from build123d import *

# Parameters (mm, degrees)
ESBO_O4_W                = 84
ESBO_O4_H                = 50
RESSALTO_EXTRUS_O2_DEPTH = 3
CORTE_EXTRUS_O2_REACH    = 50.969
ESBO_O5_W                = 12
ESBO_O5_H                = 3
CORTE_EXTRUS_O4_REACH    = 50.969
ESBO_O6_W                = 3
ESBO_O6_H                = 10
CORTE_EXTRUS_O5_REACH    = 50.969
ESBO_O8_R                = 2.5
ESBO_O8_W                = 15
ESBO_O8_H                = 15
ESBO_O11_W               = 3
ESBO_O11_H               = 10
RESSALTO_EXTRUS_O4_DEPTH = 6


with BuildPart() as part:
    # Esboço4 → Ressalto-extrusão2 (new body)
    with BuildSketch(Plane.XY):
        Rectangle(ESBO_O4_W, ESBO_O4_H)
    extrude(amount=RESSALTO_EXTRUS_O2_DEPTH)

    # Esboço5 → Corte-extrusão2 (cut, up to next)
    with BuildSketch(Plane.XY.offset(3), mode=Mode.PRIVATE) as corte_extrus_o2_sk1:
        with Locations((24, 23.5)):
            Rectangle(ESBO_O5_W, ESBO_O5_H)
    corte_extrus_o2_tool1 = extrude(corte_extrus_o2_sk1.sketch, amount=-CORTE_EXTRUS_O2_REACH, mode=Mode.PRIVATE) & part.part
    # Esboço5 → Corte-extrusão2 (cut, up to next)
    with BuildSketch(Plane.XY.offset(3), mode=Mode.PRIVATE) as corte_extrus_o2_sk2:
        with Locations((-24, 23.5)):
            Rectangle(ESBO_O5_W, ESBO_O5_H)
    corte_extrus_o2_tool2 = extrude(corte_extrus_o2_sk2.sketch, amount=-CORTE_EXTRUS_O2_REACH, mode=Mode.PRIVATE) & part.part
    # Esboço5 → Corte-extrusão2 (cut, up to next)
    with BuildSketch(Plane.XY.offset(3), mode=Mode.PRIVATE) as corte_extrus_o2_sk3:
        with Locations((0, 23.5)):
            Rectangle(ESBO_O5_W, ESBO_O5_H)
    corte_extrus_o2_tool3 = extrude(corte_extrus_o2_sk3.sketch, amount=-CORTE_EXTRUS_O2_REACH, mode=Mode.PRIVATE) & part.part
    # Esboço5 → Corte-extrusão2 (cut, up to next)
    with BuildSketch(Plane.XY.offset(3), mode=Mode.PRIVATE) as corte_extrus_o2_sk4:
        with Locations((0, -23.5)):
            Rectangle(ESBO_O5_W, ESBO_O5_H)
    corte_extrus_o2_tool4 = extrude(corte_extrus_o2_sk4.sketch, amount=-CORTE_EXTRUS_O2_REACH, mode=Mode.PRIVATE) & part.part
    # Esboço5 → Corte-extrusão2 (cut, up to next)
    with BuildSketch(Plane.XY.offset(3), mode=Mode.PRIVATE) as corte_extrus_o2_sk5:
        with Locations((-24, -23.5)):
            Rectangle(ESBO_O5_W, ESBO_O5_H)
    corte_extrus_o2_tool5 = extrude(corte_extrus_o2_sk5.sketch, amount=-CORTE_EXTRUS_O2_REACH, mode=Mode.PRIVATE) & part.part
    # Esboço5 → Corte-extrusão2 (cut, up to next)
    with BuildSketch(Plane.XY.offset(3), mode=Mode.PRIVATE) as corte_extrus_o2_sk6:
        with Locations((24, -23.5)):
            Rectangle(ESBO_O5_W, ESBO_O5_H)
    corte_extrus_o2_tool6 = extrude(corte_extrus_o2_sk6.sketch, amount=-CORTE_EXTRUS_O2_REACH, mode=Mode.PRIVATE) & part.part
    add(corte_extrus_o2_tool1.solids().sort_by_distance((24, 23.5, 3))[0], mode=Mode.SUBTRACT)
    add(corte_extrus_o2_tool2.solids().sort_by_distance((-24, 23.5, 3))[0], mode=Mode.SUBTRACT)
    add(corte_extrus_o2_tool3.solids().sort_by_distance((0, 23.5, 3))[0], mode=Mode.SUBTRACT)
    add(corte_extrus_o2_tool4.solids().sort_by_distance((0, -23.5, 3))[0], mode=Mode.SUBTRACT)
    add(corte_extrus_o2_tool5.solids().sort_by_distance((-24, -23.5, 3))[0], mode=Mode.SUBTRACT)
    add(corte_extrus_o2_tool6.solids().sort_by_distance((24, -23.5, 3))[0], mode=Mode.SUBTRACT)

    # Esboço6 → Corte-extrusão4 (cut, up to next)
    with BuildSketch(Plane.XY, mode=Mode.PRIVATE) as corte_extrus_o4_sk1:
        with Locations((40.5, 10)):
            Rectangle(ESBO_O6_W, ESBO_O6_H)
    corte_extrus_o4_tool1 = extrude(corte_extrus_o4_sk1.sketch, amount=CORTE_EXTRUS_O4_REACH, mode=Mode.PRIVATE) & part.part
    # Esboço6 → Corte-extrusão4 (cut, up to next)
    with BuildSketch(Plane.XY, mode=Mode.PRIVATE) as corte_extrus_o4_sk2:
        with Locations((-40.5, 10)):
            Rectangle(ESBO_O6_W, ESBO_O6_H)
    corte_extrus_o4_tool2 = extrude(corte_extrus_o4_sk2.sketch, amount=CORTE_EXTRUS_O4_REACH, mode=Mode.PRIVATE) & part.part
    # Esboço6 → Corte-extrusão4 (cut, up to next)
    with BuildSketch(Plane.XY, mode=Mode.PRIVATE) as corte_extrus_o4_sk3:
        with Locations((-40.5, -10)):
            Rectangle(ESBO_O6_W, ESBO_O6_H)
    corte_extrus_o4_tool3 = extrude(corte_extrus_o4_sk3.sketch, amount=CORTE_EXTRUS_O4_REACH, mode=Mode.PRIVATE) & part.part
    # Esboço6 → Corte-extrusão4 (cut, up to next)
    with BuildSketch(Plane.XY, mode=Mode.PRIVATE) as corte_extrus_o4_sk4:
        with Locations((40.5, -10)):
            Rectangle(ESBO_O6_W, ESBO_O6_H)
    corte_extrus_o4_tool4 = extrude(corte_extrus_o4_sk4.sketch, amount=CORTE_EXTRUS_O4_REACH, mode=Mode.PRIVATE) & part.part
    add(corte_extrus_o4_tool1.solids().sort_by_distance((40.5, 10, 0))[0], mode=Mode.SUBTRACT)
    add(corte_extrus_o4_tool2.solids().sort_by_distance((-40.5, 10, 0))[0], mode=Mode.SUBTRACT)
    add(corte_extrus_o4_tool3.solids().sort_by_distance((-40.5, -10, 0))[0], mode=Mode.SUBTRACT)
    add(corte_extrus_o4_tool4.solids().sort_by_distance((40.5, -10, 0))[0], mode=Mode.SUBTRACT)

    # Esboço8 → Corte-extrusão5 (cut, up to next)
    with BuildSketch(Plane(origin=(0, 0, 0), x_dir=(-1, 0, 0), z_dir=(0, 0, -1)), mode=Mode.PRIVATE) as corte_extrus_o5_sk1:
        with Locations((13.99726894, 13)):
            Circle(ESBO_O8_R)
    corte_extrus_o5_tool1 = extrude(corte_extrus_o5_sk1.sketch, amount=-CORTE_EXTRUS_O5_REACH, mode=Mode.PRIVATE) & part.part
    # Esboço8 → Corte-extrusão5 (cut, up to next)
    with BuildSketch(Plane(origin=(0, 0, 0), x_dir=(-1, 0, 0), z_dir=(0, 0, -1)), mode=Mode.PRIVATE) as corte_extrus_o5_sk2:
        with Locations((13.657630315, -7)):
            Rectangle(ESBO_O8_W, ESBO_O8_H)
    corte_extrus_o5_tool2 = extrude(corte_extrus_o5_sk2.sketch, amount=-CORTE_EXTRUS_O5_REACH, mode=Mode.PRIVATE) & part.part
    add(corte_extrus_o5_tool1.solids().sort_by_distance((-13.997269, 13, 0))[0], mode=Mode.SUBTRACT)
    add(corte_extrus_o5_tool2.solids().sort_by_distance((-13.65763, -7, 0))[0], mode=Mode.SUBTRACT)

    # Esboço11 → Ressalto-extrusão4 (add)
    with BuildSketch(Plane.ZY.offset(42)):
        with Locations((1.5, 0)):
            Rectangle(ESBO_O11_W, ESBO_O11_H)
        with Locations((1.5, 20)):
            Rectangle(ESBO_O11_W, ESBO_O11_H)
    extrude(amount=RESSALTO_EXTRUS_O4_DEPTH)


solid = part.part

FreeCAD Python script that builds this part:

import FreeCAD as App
import Part
import Sketcher
from FreeCAD import Vector
Q = App.Units.Quantity


def add_polygon(sketch, points):
    """Adds a closed chain of lines whose ends are joined by coincident constraints."""
    first, n = sketch.GeometryCount, len(points)
    for a, b in zip(points, points[1:] + points[:1]):
        sketch.addGeometry(Part.LineSegment(App.Vector(*a, 0), App.Vector(*b, 0)), False)
    for i in range(n):
        sketch.addConstraint(Sketcher.Constraint("Coincident", first + i, 2, first + (i + 1) % n, 1))

doc = App.newDocument("Part")
body = doc.addObject("PartDesign::Body", "Body")

sketch1 = doc.addObject("Sketcher::SketchObject", "Sketch")
body.addObject(sketch1)
sketch1.AttachmentSupport = (doc.XY_Plane, [""])
sketch1.MapMode = "FlatFace"
add_polygon(sketch1, [(-42, 25), (-42, -25), (42, -25), (42, 25)])
sketch1.addConstraint([
    Sketcher.Constraint("Vertical", 0),
    Sketcher.Constraint("Horizontal", 1),
    Sketcher.Constraint("Vertical", 2),
    Sketcher.Constraint("Horizontal", 3),
    Sketcher.Constraint("Symmetric", 0, 2, 2, 2, -1, 1),
    Sketcher.Constraint("DistanceX", 1, 1, 1, 2, Q("84 mm")),
    Sketcher.Constraint("DistanceY", 0, 2, 0, 1, Q("50 mm")),
])
pad1 = doc.addObject("PartDesign::Pad", "Pad")
body.addObject(pad1)
pad1.Profile = sketch1
pad1.Length = 3

sketch2 = doc.addObject("Sketcher::SketchObject", "Sketch001")
body.addObject(sketch2)
sketch2.AttachmentSupport = (doc.XY_Plane, [""])
sketch2.MapMode = "FlatFace"
sketch2.AttachmentOffset = App.Placement(Vector(0, 0, 3), App.Rotation())
add_polygon(sketch2, [(18, 25), (18, 22), (30, 22), (30, 25)])
sketch2.addConstraint([
    Sketcher.Constraint("Vertical", 0),
    Sketcher.Constraint("Horizontal", 1),
    Sketcher.Constraint("Vertical", 2),
    Sketcher.Constraint("Horizontal", 3),
    Sketcher.Constraint("DistanceX", 1, 1, 1, 2, Q("12 mm")),
    Sketcher.Constraint("DistanceY", 0, 2, 0, 1, Q("3 mm")),
    Sketcher.Constraint("DistanceX", -1, 1, 0, 2, Q("18 mm")),
    Sketcher.Constraint("DistanceY", -1, 1, 0, 2, Q("22 mm")),
])
pocket1 = doc.addObject("PartDesign::Pocket", "Pocket")
body.addObject(pocket1)
pocket1.Profile = sketch2
pocket1.Type = "UpToFirst"

sketch3 = doc.addObject("Sketcher::SketchObject", "Sketch002")
body.addObject(sketch3)
sketch3.AttachmentSupport = (doc.XY_Plane, [""])
sketch3.MapMode = "FlatFace"
sketch3.AttachmentOffset = App.Placement(Vector(0, 0, 3), App.Rotation())
add_polygon(sketch3, [(-30, 25), (-30, 22), (-18, 22), (-18, 25)])
sketch3.addConstraint([
    Sketcher.Constraint("Vertical", 0),
    Sketcher.Constraint("Horizontal", 1),
    Sketcher.Constraint("Vertical", 2),
    Sketcher.Constraint("Horizontal", 3),
    Sketcher.Constraint("DistanceX", 1, 1, 1, 2, Q("12 mm")),
    Sketcher.Constraint("DistanceY", 0, 2, 0, 1, Q("3 mm")),
    Sketcher.Constraint("DistanceX", 0, 2, -1, 1, Q("30 mm")),
    Sketcher.Constraint("DistanceY", -1, 1, 0, 2, Q("22 mm")),
])
pocket2 = doc.addObject("PartDesign::Pocket", "Pocket001")
body.addObject(pocket2)
pocket2.Profile = sketch3
pocket2.Type = "UpToFirst"

sketch4 = doc.addObject("Sketcher::SketchObject", "Sketch003")
body.addObject(sketch4)
sketch4.AttachmentSupport = (doc.XY_Plane, [""])
sketch4.MapMode = "FlatFace"
sketch4.AttachmentOffset = App.Placement(Vector(0, 0, 3), App.Rotation())
add_polygon(sketch4, [(-6, 25), (-6, 22), (6, 22), (6, 25)])
sketch4.addConstraint([
    Sketcher.Constraint("Vertical", 0),
    Sketcher.Constraint("Horizontal", 1),
    Sketcher.Constraint("Vertical", 2),
    Sketcher.Constraint("Horizontal", 3),
    Sketcher.Constraint("DistanceX", 1, 1, 1, 2, Q("12 mm")),
    Sketcher.Constraint("DistanceY", 0, 2, 0, 1, Q("3 mm")),
    Sketcher.Constraint("DistanceX", 0, 2, -1, 1, Q("6 mm")),
    Sketcher.Constraint("DistanceY", -1, 1, 0, 2, Q("22 mm")),
])
pocket3 = doc.addObject("PartDesign::Pocket", "Pocket002")
body.addObject(pocket3)
pocket3.Profile = sketch4
pocket3.Type = "UpToFirst"

sketch5 = doc.addObject("Sketcher::SketchObject", "Sketch004")
body.addObject(sketch5)
sketch5.AttachmentSupport = (doc.XY_Plane, [""])
sketch5.MapMode = "FlatFace"
sketch5.AttachmentOffset = App.Placement(Vector(0, 0, 3), App.Rotation())
add_polygon(sketch5, [(-6, -22), (-6, -25), (6, -25), (6, -22)])
sketch5.addConstraint([
    Sketcher.Constraint("Vertical", 0),
    Sketcher.Constraint("Horizontal", 1),
    Sketcher.Constraint("Vertical", 2),
    Sketcher.Constraint("Horizontal", 3),
    Sketcher.Constraint("DistanceX", 1, 1, 1, 2, Q("12 mm")),
    Sketcher.Constraint("DistanceY", 0, 2, 0, 1, Q("3 mm")),
    Sketcher.Constraint("DistanceX", 0, 2, -1, 1, Q("6 mm")),
    Sketcher.Constraint("DistanceY", 0, 2, -1, 1, Q("25 mm")),
])
pocket4 = doc.addObject("PartDesign::Pocket", "Pocket003")
body.addObject(pocket4)
pocket4.Profile = sketch5
pocket4.Type = "UpToFirst"

sketch6 = doc.addObject("Sketcher::SketchObject", "Sketch005")
body.addObject(sketch6)
sketch6.AttachmentSupport = (doc.XY_Plane, [""])
sketch6.MapMode = "FlatFace"
sketch6.AttachmentOffset = App.Placement(Vector(0, 0, 3), App.Rotation())
add_polygon(sketch6, [(-30, -22), (-30, -25), (-18, -25), (-18, -22)])
sketch6.addConstraint([
    Sketcher.Constraint("Vertical", 0),
    Sketcher.Constraint("Horizontal", 1),
    Sketcher.Constraint("Vertical", 2),
    Sketcher.Constraint("Horizontal", 3),
    Sketcher.Constraint("DistanceX", 1, 1, 1, 2, Q("12 mm")),
    Sketcher.Constraint("DistanceY", 0, 2, 0, 1, Q("3 mm")),
    Sketcher.Constraint("DistanceX", 0, 2, -1, 1, Q("30 mm")),
    Sketcher.Constraint("DistanceY", 0, 2, -1, 1, Q("25 mm")),
])
pocket5 = doc.addObject("PartDesign::Pocket", "Pocket004")
body.addObject(pocket5)
pocket5.Profile = sketch6
pocket5.Type = "UpToFirst"

sketch7 = doc.addObject("Sketcher::SketchObject", "Sketch006")
body.addObject(sketch7)
sketch7.AttachmentSupport = (doc.XY_Plane, [""])
sketch7.MapMode = "FlatFace"
sketch7.AttachmentOffset = App.Placement(Vector(0, 0, 3), App.Rotation())
add_polygon(sketch7, [(18, -22), (18, -25), (30, -25), (30, -22)])
sketch7.addConstraint([
    Sketcher.Constraint("Vertical", 0),
    Sketcher.Constraint("Horizontal", 1),
    Sketcher.Constraint("Vertical", 2),
    Sketcher.Constraint("Horizontal", 3),
    Sketcher.Constraint("DistanceX", 1, 1, 1, 2, Q("12 mm")),
    Sketcher.Constraint("DistanceY", 0, 2, 0, 1, Q("3 mm")),
    Sketcher.Constraint("DistanceX", -1, 1, 0, 2, Q("18 mm")),
    Sketcher.Constraint("DistanceY", 0, 2, -1, 1, Q("25 mm")),
])
pocket6 = doc.addObject("PartDesign::Pocket", "Pocket005")
body.addObject(pocket6)
pocket6.Profile = sketch7
pocket6.Type = "UpToFirst"

sketch8 = doc.addObject("Sketcher::SketchObject", "Sketch007")
body.addObject(sketch8)
sketch8.AttachmentSupport = (doc.XY_Plane, [""])
sketch8.MapMode = "FlatFace"
add_polygon(sketch8, [(39, 15), (39, 5), (42, 5), (42, 15)])
sketch8.addConstraint([
    Sketcher.Constraint("Vertical", 0),
    Sketcher.Constraint("Horizontal", 1),
    Sketcher.Constraint("Vertical", 2),
    Sketcher.Constraint("Horizontal", 3),
    Sketcher.Constraint("DistanceX", 1, 1, 1, 2, Q("3 mm")),
    Sketcher.Constraint("DistanceY", 0, 2, 0, 1, Q("10 mm")),
    Sketcher.Constraint("DistanceX", -1, 1, 0, 2, Q("39 mm")),
    Sketcher.Constraint("DistanceY", -1, 1, 0, 2, Q("5 mm")),
])
pocket7 = doc.addObject("PartDesign::Pocket", "Pocket006")
body.addObject(pocket7)
pocket7.Profile = sketch8
pocket7.Type = "UpToFirst"
pocket7.Reversed = True

sketch9 = doc.addObject("Sketcher::SketchObject", "Sketch008")
body.addObject(sketch9)
sketch9.AttachmentSupport = (doc.XY_Plane, [""])
sketch9.MapMode = "FlatFace"
add_polygon(sketch9, [(-42, 15), (-42, 5), (-39, 5), (-39, 15)])
sketch9.addConstraint([
    Sketcher.Constraint("Vertical", 0),
    Sketcher.Constraint("Horizontal", 1),
    Sketcher.Constraint("Vertical", 2),
    Sketcher.Constraint("Horizontal", 3),
    Sketcher.Constraint("DistanceX", 1, 1, 1, 2, Q("3 mm")),
    Sketcher.Constraint("DistanceY", 0, 2, 0, 1, Q("10 mm")),
    Sketcher.Constraint("DistanceX", 0, 2, -1, 1, Q("42 mm")),
    Sketcher.Constraint("DistanceY", -1, 1, 0, 2, Q("5 mm")),
])
pocket8 = doc.addObject("PartDesign::Pocket", "Pocket007")
body.addObject(pocket8)
pocket8.Profile = sketch9
pocket8.Type = "UpToFirst"
pocket8.Reversed = True

sketch10 = doc.addObject("Sketcher::SketchObject", "Sketch009")
body.addObject(sketch10)
sketch10.AttachmentSupport = (doc.XY_Plane, [""])
sketch10.MapMode = "FlatFace"
add_polygon(sketch10, [(-42, -5), (-42, -15), (-39, -15), (-39, -5)])
sketch10.addConstraint([
    Sketcher.Constraint("Vertical", 0),
    Sketcher.Constraint("Horizontal", 1),
    Sketcher.Constraint("Vertical", 2),
    Sketcher.Constraint("Horizontal", 3),
    Sketcher.Constraint("DistanceX", 1, 1, 1, 2, Q("3 mm")),
    Sketcher.Constraint("DistanceY", 0, 2, 0, 1, Q("10 mm")),
    Sketcher.Constraint("DistanceX", 0, 2, -1, 1, Q("42 mm")),
    Sketcher.Constraint("DistanceY", 0, 2, -1, 1, Q("15 mm")),
])
pocket9 = doc.addObject("PartDesign::Pocket", "Pocket008")
body.addObject(pocket9)
pocket9.Profile = sketch10
pocket9.Type = "UpToFirst"
pocket9.Reversed = True

sketch11 = doc.addObject("Sketcher::SketchObject", "Sketch010")
body.addObject(sketch11)
sketch11.AttachmentSupport = (doc.XY_Plane, [""])
sketch11.MapMode = "FlatFace"
add_polygon(sketch11, [(39, -5), (39, -15), (42, -15), (42, -5)])
sketch11.addConstraint([
    Sketcher.Constraint("Vertical", 0),
    Sketcher.Constraint("Horizontal", 1),
    Sketcher.Constraint("Vertical", 2),
    Sketcher.Constraint("Horizontal", 3),
    Sketcher.Constraint("DistanceX", 1, 1, 1, 2, Q("3 mm")),
    Sketcher.Constraint("DistanceY", 0, 2, 0, 1, Q("10 mm")),
    Sketcher.Constraint("DistanceX", -1, 1, 0, 2, Q("39 mm")),
    Sketcher.Constraint("DistanceY", 0, 2, -1, 1, Q("15 mm")),
])
pocket10 = doc.addObject("PartDesign::Pocket", "Pocket009")
body.addObject(pocket10)
pocket10.Profile = sketch11
pocket10.Type = "UpToFirst"
pocket10.Reversed = True

sketch12 = doc.addObject("Sketcher::SketchObject", "Sketch011")
body.addObject(sketch12)
sketch12.AttachmentSupport = (doc.XY_Plane, [""])
sketch12.MapMode = "FlatFace"
sketch12.addGeometry(Part.Circle(Vector(-14, 13, 0), Vector(0, 0, 1), 2.5), False)
sketch12.addConstraint([
    Sketcher.Constraint("Diameter", 0, Q("5 mm")),
    Sketcher.Constraint("DistanceY", -1, 1, 0, 3, Q("13 mm")),
    Sketcher.Constraint("DistanceX", 0, 3, -1, 1, Q("13.997269 mm")),
])
pocket11 = doc.addObject("PartDesign::Pocket", "Pocket010")
body.addObject(pocket11)
pocket11.Profile = sketch12
pocket11.Type = "UpToFirst"
pocket11.Reversed = True

sketch13 = doc.addObject("Sketcher::SketchObject", "Sketch012")
body.addObject(sketch13)
sketch13.AttachmentSupport = (doc.XY_Plane, [""])
sketch13.MapMode = "FlatFace"
add_polygon(sketch13, [(-6, 0), (-6, -14), (-21, -14), (-21, 0)])
sketch13.addConstraint([
    Sketcher.Constraint("Vertical", 0),
    Sketcher.Constraint("Horizontal", 1),
    Sketcher.Constraint("Vertical", 2),
    Sketcher.Constraint("Horizontal", 3),
    Sketcher.Constraint("Equal", 3, 0),
    Sketcher.Constraint("DistanceX", 1, 2, 1, 1, Q("15 mm")),
    Sketcher.Constraint("DistanceY", 0, 2, -1, 1, Q("14.5 mm")),
    Sketcher.Constraint("DistanceX", 0, 2, -1, 1, Q("6.15763 mm")),
])
pocket12 = doc.addObject("PartDesign::Pocket", "Pocket011")
body.addObject(pocket12)
pocket12.Profile = sketch13
pocket12.Type = "UpToFirst"
pocket12.Reversed = True

sketch14 = doc.addObject("Sketcher::SketchObject", "Sketch013")
body.addObject(sketch14)
sketch14.AttachmentSupport = (doc.YZ_Plane, [""])
sketch14.MapMode = "FlatFace"
sketch14.AttachmentOffset = App.Placement(Vector(0, 0, -42), App.Rotation())
add_polygon(sketch14, [(5, 0), (-5, 0), (-5, 3), (5, 3)])
add_polygon(sketch14, [(25, 0), (15, 0), (15, 3), (25, 3)])
sketch14.addConstraint([
    Sketcher.Constraint("Horizontal", 0),
    Sketcher.Constraint("Vertical", 1),
    Sketcher.Constraint("Horizontal", 2),
    Sketcher.Constraint("Vertical", 3),
    Sketcher.Constraint("Horizontal", 4),
    Sketcher.Constraint("Vertical", 5),
    Sketcher.Constraint("Horizontal", 6),
    Sketcher.Constraint("Vertical", 7),
    Sketcher.Constraint("Symmetric", 0, 2, 3, 2, -1, 1),
    Sketcher.Constraint("PointOnObject", 4, 2, -1),
    Sketcher.Constraint("Horizontal", 2, 2, 5, 2),
    Sketcher.Constraint("Equal", 2, 4),
    Sketcher.Constraint("DistanceX", 0, 2, 0, 1, Q("10 mm")),
    Sketcher.Constraint("DistanceY", 1, 1, 1, 2, Q("3 mm")),
    Sketcher.Constraint("DistanceX", -1, 1, 4, 2, Q("15 mm")),
])
pad2 = doc.addObject("PartDesign::Pad", "Pad001")
body.addObject(pad2)
pad2.Profile = sketch14
pad2.Length = 6
pad2.Reversed = True

doc.recompute()
